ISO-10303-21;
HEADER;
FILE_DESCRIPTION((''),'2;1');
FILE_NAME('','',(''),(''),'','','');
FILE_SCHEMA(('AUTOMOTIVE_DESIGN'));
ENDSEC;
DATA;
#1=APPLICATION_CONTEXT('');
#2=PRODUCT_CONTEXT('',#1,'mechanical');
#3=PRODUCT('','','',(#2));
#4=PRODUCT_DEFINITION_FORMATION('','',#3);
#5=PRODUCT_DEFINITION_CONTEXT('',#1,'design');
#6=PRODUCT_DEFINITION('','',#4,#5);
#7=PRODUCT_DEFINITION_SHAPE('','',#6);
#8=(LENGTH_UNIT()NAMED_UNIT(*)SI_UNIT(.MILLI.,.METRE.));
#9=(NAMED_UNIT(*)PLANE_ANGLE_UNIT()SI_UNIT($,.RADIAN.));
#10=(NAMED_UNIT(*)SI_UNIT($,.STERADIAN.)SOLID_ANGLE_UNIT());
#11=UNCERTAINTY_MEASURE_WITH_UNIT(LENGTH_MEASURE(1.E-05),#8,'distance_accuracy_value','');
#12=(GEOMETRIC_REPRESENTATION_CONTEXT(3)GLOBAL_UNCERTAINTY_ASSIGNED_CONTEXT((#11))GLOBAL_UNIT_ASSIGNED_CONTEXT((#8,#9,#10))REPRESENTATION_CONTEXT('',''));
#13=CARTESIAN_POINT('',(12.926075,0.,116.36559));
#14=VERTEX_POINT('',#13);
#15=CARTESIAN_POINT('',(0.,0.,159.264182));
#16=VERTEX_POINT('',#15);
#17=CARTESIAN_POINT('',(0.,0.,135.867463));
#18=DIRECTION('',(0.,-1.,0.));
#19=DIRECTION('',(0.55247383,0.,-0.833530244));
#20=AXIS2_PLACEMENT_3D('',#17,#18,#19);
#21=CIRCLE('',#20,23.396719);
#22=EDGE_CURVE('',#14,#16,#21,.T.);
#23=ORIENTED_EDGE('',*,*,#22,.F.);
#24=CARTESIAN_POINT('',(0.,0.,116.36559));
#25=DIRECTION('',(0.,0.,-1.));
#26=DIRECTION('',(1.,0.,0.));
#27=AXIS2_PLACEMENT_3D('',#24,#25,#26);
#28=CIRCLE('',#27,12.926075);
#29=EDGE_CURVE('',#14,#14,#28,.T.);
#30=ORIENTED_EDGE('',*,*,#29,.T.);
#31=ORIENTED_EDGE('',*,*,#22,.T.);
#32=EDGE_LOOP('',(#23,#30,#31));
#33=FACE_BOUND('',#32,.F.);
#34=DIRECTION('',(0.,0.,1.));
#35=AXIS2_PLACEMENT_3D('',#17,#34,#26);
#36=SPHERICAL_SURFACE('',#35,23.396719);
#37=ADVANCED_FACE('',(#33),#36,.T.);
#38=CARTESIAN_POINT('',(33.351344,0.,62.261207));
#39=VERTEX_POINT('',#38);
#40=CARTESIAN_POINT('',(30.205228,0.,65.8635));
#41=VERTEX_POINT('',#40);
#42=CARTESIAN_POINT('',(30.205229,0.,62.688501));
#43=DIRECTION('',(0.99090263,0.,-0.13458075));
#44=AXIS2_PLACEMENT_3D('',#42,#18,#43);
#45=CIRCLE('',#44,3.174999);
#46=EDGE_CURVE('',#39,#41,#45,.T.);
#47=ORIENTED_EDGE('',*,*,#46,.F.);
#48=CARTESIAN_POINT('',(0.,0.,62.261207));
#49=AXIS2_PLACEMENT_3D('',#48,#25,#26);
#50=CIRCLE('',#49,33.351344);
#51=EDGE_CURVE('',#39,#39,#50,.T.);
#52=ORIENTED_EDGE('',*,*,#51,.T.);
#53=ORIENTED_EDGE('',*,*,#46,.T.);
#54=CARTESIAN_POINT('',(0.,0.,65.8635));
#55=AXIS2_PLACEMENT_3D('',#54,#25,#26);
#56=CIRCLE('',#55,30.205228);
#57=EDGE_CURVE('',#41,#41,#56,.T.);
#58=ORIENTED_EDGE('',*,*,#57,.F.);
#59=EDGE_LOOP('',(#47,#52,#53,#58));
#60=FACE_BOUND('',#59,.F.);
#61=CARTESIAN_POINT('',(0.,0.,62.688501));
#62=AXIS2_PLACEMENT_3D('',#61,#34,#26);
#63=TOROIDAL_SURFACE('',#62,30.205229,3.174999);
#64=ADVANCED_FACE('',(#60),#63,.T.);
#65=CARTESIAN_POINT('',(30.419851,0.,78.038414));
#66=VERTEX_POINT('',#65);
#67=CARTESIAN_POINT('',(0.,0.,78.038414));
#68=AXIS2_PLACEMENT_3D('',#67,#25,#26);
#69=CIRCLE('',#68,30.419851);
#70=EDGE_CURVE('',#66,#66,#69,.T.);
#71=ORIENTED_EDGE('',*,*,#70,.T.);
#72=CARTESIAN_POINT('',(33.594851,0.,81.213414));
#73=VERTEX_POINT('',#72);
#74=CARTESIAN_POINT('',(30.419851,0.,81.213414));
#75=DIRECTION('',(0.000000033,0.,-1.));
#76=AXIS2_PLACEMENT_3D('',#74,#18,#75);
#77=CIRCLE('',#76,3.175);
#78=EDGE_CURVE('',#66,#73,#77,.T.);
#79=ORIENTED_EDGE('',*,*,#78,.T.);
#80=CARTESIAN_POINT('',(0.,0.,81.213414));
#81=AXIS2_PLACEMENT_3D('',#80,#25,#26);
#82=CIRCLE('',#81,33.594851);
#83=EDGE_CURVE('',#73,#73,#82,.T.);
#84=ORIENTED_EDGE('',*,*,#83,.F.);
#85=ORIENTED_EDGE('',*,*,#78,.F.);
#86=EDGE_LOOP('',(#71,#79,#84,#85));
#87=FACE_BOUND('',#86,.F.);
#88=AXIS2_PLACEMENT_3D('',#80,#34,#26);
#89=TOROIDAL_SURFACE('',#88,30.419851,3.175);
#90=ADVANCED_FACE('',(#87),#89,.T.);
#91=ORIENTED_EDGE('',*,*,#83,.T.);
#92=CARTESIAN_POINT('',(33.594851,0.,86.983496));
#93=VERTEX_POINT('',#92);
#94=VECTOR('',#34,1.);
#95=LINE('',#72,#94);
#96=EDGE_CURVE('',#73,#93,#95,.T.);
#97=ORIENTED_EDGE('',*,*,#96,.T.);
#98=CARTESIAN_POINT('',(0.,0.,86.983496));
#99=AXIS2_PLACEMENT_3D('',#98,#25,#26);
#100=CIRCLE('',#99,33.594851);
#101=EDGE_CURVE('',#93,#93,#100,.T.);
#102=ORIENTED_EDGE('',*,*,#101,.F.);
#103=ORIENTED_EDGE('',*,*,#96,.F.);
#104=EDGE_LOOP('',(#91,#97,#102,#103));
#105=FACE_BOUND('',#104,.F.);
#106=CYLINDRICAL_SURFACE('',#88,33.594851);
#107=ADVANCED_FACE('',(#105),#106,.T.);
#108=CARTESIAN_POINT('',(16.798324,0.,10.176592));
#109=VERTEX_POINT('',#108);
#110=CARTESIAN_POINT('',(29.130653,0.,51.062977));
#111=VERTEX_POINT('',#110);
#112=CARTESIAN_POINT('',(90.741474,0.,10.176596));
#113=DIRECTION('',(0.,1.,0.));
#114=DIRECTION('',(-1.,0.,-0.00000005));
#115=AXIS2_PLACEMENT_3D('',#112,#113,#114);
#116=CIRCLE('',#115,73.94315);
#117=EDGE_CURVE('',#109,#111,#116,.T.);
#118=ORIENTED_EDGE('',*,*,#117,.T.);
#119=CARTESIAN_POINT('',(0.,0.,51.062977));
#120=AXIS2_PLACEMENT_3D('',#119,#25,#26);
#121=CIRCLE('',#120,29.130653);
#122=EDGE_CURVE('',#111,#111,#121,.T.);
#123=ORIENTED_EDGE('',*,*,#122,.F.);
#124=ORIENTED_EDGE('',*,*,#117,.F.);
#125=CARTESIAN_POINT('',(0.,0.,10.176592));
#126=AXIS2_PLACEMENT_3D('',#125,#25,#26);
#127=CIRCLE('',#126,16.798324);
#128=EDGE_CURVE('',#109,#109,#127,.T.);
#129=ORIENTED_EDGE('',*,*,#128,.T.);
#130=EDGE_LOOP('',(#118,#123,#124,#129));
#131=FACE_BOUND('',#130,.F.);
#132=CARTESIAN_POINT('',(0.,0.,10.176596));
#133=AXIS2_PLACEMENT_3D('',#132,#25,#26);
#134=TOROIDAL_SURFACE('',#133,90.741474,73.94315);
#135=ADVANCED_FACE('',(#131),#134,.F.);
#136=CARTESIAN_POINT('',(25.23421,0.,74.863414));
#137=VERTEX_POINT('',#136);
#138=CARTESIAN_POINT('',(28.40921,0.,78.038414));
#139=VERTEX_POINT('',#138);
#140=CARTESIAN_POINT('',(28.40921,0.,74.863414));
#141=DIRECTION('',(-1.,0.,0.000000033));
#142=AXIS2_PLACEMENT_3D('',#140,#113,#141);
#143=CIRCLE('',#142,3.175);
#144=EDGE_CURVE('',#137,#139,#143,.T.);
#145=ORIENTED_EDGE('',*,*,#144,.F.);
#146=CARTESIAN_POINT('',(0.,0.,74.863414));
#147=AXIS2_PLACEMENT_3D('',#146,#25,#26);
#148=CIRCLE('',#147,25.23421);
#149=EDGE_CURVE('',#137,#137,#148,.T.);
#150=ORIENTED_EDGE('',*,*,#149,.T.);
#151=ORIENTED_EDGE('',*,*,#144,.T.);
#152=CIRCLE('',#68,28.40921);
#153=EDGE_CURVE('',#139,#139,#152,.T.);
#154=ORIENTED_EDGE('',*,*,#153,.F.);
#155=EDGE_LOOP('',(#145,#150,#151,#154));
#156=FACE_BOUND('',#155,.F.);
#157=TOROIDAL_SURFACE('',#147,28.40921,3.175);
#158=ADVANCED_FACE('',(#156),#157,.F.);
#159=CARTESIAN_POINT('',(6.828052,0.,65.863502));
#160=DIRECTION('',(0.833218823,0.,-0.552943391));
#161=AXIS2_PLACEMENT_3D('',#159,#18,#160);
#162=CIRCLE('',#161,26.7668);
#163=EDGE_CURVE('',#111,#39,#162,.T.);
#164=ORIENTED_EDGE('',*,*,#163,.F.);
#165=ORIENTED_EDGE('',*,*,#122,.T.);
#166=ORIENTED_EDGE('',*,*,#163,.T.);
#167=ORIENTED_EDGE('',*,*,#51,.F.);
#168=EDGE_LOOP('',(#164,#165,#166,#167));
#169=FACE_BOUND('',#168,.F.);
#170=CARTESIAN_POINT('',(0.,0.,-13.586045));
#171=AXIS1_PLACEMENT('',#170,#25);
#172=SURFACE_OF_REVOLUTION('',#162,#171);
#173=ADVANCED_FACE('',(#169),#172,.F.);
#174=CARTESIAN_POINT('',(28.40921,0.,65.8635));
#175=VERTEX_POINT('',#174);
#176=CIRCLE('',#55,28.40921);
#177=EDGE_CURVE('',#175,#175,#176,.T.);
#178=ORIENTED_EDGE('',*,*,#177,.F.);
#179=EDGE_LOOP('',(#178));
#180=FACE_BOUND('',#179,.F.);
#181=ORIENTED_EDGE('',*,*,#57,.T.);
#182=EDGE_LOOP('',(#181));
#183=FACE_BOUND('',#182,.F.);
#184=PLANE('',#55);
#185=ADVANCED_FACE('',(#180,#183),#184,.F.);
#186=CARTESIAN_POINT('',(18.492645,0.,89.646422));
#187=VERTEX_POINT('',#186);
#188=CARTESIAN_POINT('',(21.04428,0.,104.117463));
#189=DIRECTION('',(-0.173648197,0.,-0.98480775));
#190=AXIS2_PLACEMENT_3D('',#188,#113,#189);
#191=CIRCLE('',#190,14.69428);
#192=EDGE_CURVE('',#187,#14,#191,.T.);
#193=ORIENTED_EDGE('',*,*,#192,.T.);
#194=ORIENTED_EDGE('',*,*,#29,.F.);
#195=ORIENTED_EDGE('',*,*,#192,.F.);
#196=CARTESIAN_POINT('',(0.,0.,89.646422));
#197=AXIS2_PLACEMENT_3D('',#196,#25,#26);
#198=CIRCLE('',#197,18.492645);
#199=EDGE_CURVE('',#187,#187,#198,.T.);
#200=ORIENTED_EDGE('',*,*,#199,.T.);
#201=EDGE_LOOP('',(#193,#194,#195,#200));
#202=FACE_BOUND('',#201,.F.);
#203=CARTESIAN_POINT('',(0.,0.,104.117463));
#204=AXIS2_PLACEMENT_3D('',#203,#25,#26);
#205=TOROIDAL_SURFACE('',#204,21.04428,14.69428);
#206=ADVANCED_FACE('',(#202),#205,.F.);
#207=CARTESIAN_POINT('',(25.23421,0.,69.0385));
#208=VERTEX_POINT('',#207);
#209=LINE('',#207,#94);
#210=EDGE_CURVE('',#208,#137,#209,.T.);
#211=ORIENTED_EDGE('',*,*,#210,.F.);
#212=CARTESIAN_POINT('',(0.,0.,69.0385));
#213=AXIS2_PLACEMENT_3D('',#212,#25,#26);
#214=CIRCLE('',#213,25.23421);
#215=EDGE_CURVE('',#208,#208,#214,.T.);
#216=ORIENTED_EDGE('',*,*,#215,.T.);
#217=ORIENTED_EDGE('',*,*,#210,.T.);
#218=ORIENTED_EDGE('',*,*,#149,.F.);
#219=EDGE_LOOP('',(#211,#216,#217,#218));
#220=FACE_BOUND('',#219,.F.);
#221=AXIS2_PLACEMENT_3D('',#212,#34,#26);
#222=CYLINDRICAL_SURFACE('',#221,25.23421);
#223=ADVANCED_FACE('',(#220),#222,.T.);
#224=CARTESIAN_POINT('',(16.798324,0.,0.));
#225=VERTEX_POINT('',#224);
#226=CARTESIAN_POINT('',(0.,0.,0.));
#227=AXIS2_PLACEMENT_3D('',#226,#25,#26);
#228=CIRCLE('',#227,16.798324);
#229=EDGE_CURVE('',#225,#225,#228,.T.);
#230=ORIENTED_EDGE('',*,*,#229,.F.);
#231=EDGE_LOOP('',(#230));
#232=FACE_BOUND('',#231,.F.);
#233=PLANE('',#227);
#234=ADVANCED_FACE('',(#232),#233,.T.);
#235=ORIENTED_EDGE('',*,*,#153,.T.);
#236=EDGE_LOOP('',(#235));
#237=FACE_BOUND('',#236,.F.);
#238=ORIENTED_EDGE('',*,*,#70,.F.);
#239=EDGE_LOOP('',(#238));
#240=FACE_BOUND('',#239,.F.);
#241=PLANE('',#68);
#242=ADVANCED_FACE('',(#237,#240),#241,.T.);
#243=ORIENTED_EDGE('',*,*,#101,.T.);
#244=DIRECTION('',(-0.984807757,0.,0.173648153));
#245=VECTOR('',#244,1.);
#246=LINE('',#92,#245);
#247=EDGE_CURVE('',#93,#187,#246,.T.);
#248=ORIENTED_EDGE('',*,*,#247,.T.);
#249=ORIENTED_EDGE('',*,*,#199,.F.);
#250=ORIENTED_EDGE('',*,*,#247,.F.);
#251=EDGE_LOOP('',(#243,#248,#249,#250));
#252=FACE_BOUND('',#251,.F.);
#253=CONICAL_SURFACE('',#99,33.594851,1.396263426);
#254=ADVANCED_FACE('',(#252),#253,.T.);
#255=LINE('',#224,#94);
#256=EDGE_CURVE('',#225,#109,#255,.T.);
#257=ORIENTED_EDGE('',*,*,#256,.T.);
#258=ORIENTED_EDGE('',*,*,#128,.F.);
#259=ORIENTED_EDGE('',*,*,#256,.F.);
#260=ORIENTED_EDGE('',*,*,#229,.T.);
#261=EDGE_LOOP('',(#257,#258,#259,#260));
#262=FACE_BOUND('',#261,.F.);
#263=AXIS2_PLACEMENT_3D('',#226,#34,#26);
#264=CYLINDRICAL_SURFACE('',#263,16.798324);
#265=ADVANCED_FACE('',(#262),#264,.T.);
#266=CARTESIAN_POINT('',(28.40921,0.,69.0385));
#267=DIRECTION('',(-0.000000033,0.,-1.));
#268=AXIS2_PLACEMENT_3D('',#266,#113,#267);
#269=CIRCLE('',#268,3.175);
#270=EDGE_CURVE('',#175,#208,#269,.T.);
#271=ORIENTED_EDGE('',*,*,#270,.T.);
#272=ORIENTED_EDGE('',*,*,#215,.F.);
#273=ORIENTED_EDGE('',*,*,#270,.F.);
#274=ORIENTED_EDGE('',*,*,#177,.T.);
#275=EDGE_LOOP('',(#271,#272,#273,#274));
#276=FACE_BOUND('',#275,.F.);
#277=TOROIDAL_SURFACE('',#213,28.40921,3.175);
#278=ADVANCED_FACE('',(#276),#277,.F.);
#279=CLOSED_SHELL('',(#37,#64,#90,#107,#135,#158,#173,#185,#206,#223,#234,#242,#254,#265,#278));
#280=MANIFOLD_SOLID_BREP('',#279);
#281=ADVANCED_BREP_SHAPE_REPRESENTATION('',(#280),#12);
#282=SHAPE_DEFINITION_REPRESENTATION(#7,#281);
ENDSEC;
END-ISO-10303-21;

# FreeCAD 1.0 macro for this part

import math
import FreeCAD as App
import Part
import Sketcher

V = App.Vector
Q = App.Units.Quantity

doc = App.newDocument("Part")
body = doc.addObject("PartDesign::Body", "Body")

sketch1 = body.newObject("Sketcher::SketchObject", "Sketch")
sketch1.AttachmentSupport = (doc.getObject("XZ_Plane"), [""])
sketch1.MapMode = "FlatFace"
sketch1.addGeometry(Part.LineSegment(V(0, 159.264182, 0), V(0, 0, 0)), False)
sketch1.addGeometry(Part.LineSegment(V(0, 0, 0), V(16.798324, 0, 0)), False)
sketch1.addGeometry(Part.LineSegment(V(16.798324, 0, 0), V(16.798324, 10.176592, 0)), False)
sketch1.addGeometry(Part.ArcOfCircle(Part.Circle(V(90.741474, 10.176596, 0), V(0, 0, 1), 73.94315), math.radians(146.430818), math.radians(180.000003)), False)
sketch1.addGeometry(Part.ArcOfCircle(Part.Circle(V(6.828052, 65.863502, 0), V(0, 0, 1), 26.7668), math.radians(-33.569177), math.radians(-7.734375)), False)
sketch1.addGeometry(Part.ArcOfCircle(Part.Circle(V(30.205229, 62.688501, 0), V(0, 0, 1), 3.174999), math.radians(-7.734377), math.radians(90.000017)), False)
sketch1.addGeometry(Part.LineSegment(V(30.205228, 65.8635, 0), V(28.40921, 65.8635, 0)), False)
sketch1.addGeometry(Part.ArcOfCircle(Part.Circle(V(28.40921, 69.0385, 0), V(0, 0, 1), 3.175), math.radians(-179.999998), math.radians(-90.000002)), False)
sketch1.addGeometry(Part.LineSegment(V(25.23421, 69.0385, 0), V(25.23421, 74.863414, 0)), False)
sketch1.addGeometry(Part.ArcOfCircle(Part.Circle(V(28.40921, 74.863414, 0), V(0, 0, 1), 3.175), math.radians(90.000002), math.radians(179.999998)), False)
sketch1.addGeometry(Part.LineSegment(V(28.40921, 78.038414, 0), V(30.419851, 78.038414, 0)), False)
sketch1.addGeometry(Part.ArcOfCircle(Part.Circle(V(30.419851, 81.213414, 0), V(0, 0, 1), 3.175), math.radians(-89.999998), math.radians(-0.000002)), False)
sketch1.addGeometry(Part.LineSegment(V(33.594851, 81.213414, 0), V(33.594851, 86.983496, 0)), False)
sketch1.addGeometry(Part.LineSegment(V(33.594851, 86.983496, 0), V(18.492645, 89.646422, 0)), False)
sketch1.addGeometry(Part.ArcOfCircle(Part.Circle(V(21.04428, 104.117463, 0), V(0, 0, 1), 14.69428), math.radians(123.536894), math.radians(259.999999)), False)
sketch1.addGeometry(Part.ArcOfCircle(Part.Circle(V(0, 135.867463, 0), V(0, 0, 1), 23.396719), math.radians(-56.463106), math.radians(90)), False)
sketch1.addConstraint(Sketcher.Constraint("Coincident", 0, 2, 1, 1))
sketch1.addConstraint(Sketcher.Constraint("Coincident", 1, 2, 2, 1))
sketch1.addConstraint(Sketcher.Constraint("Tangent", 2, 2, 3, 2))
sketch1.addConstraint(Sketcher.Constraint("Tangent", 3, 1, 4, 1))
sketch1.addConstraint(Sketcher.Constraint("Tangent", 4, 2, 5, 1))
sketch1.addConstraint(Sketcher.Constraint("Tangent", 5, 2, 6, 1))
sketch1.addConstraint(Sketcher.Constraint("Tangent", 6, 2, 7, 2))
sketch1.addConstraint(Sketcher.Constraint("Tangent", 7, 1, 8, 1))
sketch1.addConstraint(Sketcher.Constraint("Tangent", 8, 2, 9, 2))
sketch1.addConstraint(Sketcher.Constraint("Tangent", 9, 1, 10, 1))
sketch1.addConstraint(Sketcher.Constraint("Tangent", 10, 2, 11, 1))
sketch1.addConstraint(Sketcher.Constraint("Tangent", 11, 2, 12, 1))
sketch1.addConstraint(Sketcher.Constraint("Coincident", 12, 2, 13, 1))
sketch1.addConstraint(Sketcher.Constraint("Tangent", 13, 2, 14, 2))
sketch1.addConstraint(Sketcher.Constraint("Tangent", 14, 1, 15, 1))
sketch1.addConstraint(Sketcher.Constraint("Coincident", 15, 2, 0, 1))
sketch1.addConstraint(Sketcher.Constraint("Vertical", 0))
sketch1.addConstraint(Sketcher.Constraint("Horizontal", 1))
sketch1.addConstraint(Sketcher.Constraint("Vertical", 2))
sketch1.addConstraint(Sketcher.Constraint("Horizontal", 6))
sketch1.addConstraint(Sketcher.Constraint("Vertical", 8))
sketch1.addConstraint(Sketcher.Constraint("Horizontal", 10))
sketch1.addConstraint(Sketcher.Constraint("Vertical", 12))
sketch1.addConstraint(Sketcher.Constraint("Coincident", 0, 2, -1, 1))
sketch1.addConstraint(Sketcher.Constraint("Equal", 5, 7))
sketch1.addConstraint(Sketcher.Constraint("Equal", 7, 9))
sketch1.addConstraint(Sketcher.Constraint("Equal", 9, 11))
sketch1.addConstraint(Sketcher.Constraint("PointOnObject", 15, 3, -2))
sketch1.addConstraint(Sketcher.Constraint("Horizontal", 4, 3, 5, 2))
sketch1.addConstraint(Sketcher.Constraint("Angle", 13, Q("170.000001 deg")))
sketch1.addConstraint(Sketcher.Constraint("Radius", 5, Q("0.125 in")))
sketch1.addConstraint(Sketcher.Constraint("Radius", 4, 26.7668))
sketch1.addConstraint(Sketcher.Constraint("DistanceY", 14, 3, 15, 3, Q("1.25 in")))
sketch1.addConstraint(Sketcher.Constraint("Radius", 3, 73.94315))
sketch1.addConstraint(Sketcher.Constraint("Radius", 14, 14.69428))
sketch1.addConstraint(Sketcher.Constraint("Radius", 15, 23.396719))
sketch1.addConstraint(Sketcher.Constraint("DistanceX", 6, 2, 6, 1, 1.796018))
sketch1.addConstraint(Sketcher.Constraint("DistanceX", 10, 1, 10, 2, 2.010641))
sketch1.addConstraint(Sketcher.Constraint("DistanceY", 0, 2, 0, 1, 159.264182))
sketch1.addConstraint(Sketcher.Constraint("DistanceY", -1, 1, 4, 3, 65.863502))
sketch1.addConstraint(Sketcher.Constraint("DistanceX", 4, 3, 3, 1, 22.302601))
sketch1.addConstraint(Sketcher.Constraint("Distance", 13, 15.335182))
sketch1.addConstraint(Sketcher.Constraint("DistanceY", 8, 1, 8, 2, 5.824914))
revolution = body.newObject("PartDesign::Revolution", "Revolution")
revolution.Profile = sketch1
revolution.ReferenceAxis = (sketch1, ["V_Axis"])
revolution.Angle = 360

doc.recompute()
